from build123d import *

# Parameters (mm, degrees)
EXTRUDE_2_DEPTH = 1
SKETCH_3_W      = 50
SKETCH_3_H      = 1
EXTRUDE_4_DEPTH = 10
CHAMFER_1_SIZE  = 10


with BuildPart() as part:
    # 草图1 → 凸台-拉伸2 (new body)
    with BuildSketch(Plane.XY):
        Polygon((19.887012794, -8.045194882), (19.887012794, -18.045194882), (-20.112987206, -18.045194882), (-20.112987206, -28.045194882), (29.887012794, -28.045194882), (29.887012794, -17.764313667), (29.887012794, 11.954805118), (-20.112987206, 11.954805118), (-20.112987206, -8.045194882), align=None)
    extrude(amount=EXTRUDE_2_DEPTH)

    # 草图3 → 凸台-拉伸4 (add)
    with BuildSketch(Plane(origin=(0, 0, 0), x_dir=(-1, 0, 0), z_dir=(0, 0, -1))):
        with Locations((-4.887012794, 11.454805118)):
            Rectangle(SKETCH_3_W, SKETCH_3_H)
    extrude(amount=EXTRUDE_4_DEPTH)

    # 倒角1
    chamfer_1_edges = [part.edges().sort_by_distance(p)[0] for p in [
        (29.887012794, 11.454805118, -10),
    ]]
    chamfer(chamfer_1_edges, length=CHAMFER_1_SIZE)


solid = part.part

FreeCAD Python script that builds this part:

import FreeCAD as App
import Part
import Sketcher


def edges_at(feature, points):
    """Names of the edges that pass closest to the given points."""
    edges = feature.Shape.Edges
    near = lambda p: min(range(len(edges)), key=lambda i: edges[i].distToShape(Part.Vertex(*p))[0])
    return sorted({f"Edge{near(p) + 1}" for p in points})

doc = App.newDocument("Part")
body = doc.addObject("PartDesign::Body", "Body")

sketch1 = body.newObject("Sketcher::SketchObject", "Sketch")
sketch1.AttachmentSupport = (doc.getObject("XY_Plane"), [""])
sketch1.MapMode = "FlatFace"
sketch1.addGeometry(Part.LineSegment(App.Vector(20, -8, 0), App.Vector(20, -18, 0)), False)
sketch1.addGeometry(Part.LineSegment(App.Vector(20, -18, 0), App.Vector(-20, -18, 0)), False)
sketch1.addGeometry(Part.LineSegment(App.Vector(-20, -18, 0), App.Vector(-20, -28, 0)), False)
sketch1.addGeometry(Part.LineSegment(App.Vector(-20, -28, 0), App.Vector(30, -28, 0)), False)
sketch1.addGeometry(Part.LineSegment(App.Vector(30, -28, 0), App.Vector(30, 12, 0)), False)
sketch1.addGeometry(Part.LineSegment(App.Vector(30, 12, 0), App.Vector(-20, 12, 0)), False)
sketch1.addGeometry(Part.LineSegment(App.Vector(-20, 12, 0), App.Vector(-20, -8, 0)), False)
sketch1.addGeometry(Part.LineSegment(App.Vector(-20, -8, 0), App.Vector(20, -8, 0)), False)
sketch1.addConstraint(Sketcher.Constraint("Coincident", 0, 2, 1, 1))
sketch1.addConstraint(Sketcher.Constraint("Coincident", 1, 2, 2, 1))
sketch1.addConstraint(Sketcher.Constraint("Coincident", 2, 2, 3, 1))
sketch1.addConstraint(Sketcher.Constraint("Coincident", 3, 2, 4, 1))
sketch1.addConstraint(Sketcher.Constraint("Coincident", 4, 2, 5, 1))
sketch1.addConstraint(Sketcher.Constraint("Coincident", 5, 2, 6, 1))
sketch1.addConstraint(Sketcher.Constraint("Coincident", 6, 2, 7, 1))
sketch1.addConstraint(Sketcher.Constraint("Coincident", 7, 2, 0, 1))
sketch1.addConstraint(Sketcher.Constraint("Vertical", 0))
sketch1.addConstraint(Sketcher.Constraint("Horizontal", 1))
sketch1.addConstraint(Sketcher.Constraint("Vertical", 2))
sketch1.addConstraint(Sketcher.Constraint("Horizontal", 3))
sketch1.addConstraint(Sketcher.Constraint("Vertical", 4))
sketch1.addConstraint(Sketcher.Constraint("Horizontal", 5))
sketch1.addConstraint(Sketcher.Constraint("Vertical", 6))
sketch1.addConstraint(Sketcher.Constraint("Horizontal", 7))
sketch1.addConstraint(Sketcher.Constraint("Vertical", 2, 2, 5, 2))
sketch1.addConstraint(Sketcher.Constraint("Equal", 0, 2))
sketch1.addConstraint(Sketcher.Constraint("Equal", 7, 4))
sketch1.addConstraint(Sketcher.Constraint("DistanceX", 1, 2, 1, 1, 40.0))
sketch1.addConstraint(Sketcher.Constraint("DistanceX", 3, 1, 3, 2, 50.0))
sketch1.addConstraint(Sketcher.Constraint("DistanceY", 0, 2, 0, 1, 10.0))
sketch1.addConstraint(Sketcher.Constraint("DistanceX", -1, 1, 0, 2, 19.887013))
sketch1.addConstraint(Sketcher.Constraint("DistanceY", 0, 2, -1, 1, 18.045195))
pad1 = body.newObject("PartDesign::Pad", "Pad")
pad1.Profile = sketch1
pad1.Length = 1

sketch2 = body.newObject("Sketcher::SketchObject", "Sketch001")
sketch2.AttachmentSupport = (doc.getObject("XY_Plane"), [""])
sketch2.MapMode = "FlatFace"
sketch2.addGeometry(Part.LineSegment(App.Vector(29.9, 12, 0), App.Vector(29.9, 11, 0)), False)
sketch2.addGeometry(Part.LineSegment(App.Vector(29.9, 11, 0), App.Vector(-20.1, 11, 0)), False)
sketch2.addGeometry(Part.LineSegment(App.Vector(-20.1, 11, 0), App.Vector(-20.1, 12, 0)), False)
sketch2.addGeometry(Part.LineSegment(App.Vector(-20.1, 12, 0), App.Vector(29.9, 12, 0)), False)
sketch2.addConstraint(Sketcher.Constraint("Coincident", 0, 2, 1, 1))
sketch2.addConstraint(Sketcher.Constraint("Coincident", 1, 2, 2, 1))
sketch2.addConstraint(Sketcher.Constraint("Coincident", 2, 2, 3, 1))
sketch2.addConstraint(Sketcher.Constraint("Coincident", 3, 2, 0, 1))
sketch2.addConstraint(Sketcher.Constraint("Vertical", 0))
sketch2.addConstraint(Sketcher.Constraint("Horizontal", 1))
sketch2.addConstraint(Sketcher.Constraint("Vertical", 2))
sketch2.addConstraint(Sketcher.Constraint("Horizontal", 3))
sketch2.addConstraint(Sketcher.Constraint("DistanceX", 1, 2, 1, 1, 50.0))
sketch2.addConstraint(Sketcher.Constraint("DistanceY", 0, 2, 0, 1, 1.0))
sketch2.addConstraint(Sketcher.Constraint("DistanceX", -1, 1, 0, 2, 29.887013))
sketch2.addConstraint(Sketcher.Constraint("DistanceY", -1, 1, 0, 2, 10.954805))
pad2 = body.newObject("PartDesign::Pad", "Pad001")
pad2.Profile = sketch2
pad2.Length = 10
pad2.Reversed = True
doc.recompute()

chamfer = body.newObject("PartDesign::Chamfer", "Chamfer")
chamfer.Base = (pad2, edges_at(pad2, [(29.887, 11.455, -10)]))
chamfer.Size = 10

doc.recompute()
